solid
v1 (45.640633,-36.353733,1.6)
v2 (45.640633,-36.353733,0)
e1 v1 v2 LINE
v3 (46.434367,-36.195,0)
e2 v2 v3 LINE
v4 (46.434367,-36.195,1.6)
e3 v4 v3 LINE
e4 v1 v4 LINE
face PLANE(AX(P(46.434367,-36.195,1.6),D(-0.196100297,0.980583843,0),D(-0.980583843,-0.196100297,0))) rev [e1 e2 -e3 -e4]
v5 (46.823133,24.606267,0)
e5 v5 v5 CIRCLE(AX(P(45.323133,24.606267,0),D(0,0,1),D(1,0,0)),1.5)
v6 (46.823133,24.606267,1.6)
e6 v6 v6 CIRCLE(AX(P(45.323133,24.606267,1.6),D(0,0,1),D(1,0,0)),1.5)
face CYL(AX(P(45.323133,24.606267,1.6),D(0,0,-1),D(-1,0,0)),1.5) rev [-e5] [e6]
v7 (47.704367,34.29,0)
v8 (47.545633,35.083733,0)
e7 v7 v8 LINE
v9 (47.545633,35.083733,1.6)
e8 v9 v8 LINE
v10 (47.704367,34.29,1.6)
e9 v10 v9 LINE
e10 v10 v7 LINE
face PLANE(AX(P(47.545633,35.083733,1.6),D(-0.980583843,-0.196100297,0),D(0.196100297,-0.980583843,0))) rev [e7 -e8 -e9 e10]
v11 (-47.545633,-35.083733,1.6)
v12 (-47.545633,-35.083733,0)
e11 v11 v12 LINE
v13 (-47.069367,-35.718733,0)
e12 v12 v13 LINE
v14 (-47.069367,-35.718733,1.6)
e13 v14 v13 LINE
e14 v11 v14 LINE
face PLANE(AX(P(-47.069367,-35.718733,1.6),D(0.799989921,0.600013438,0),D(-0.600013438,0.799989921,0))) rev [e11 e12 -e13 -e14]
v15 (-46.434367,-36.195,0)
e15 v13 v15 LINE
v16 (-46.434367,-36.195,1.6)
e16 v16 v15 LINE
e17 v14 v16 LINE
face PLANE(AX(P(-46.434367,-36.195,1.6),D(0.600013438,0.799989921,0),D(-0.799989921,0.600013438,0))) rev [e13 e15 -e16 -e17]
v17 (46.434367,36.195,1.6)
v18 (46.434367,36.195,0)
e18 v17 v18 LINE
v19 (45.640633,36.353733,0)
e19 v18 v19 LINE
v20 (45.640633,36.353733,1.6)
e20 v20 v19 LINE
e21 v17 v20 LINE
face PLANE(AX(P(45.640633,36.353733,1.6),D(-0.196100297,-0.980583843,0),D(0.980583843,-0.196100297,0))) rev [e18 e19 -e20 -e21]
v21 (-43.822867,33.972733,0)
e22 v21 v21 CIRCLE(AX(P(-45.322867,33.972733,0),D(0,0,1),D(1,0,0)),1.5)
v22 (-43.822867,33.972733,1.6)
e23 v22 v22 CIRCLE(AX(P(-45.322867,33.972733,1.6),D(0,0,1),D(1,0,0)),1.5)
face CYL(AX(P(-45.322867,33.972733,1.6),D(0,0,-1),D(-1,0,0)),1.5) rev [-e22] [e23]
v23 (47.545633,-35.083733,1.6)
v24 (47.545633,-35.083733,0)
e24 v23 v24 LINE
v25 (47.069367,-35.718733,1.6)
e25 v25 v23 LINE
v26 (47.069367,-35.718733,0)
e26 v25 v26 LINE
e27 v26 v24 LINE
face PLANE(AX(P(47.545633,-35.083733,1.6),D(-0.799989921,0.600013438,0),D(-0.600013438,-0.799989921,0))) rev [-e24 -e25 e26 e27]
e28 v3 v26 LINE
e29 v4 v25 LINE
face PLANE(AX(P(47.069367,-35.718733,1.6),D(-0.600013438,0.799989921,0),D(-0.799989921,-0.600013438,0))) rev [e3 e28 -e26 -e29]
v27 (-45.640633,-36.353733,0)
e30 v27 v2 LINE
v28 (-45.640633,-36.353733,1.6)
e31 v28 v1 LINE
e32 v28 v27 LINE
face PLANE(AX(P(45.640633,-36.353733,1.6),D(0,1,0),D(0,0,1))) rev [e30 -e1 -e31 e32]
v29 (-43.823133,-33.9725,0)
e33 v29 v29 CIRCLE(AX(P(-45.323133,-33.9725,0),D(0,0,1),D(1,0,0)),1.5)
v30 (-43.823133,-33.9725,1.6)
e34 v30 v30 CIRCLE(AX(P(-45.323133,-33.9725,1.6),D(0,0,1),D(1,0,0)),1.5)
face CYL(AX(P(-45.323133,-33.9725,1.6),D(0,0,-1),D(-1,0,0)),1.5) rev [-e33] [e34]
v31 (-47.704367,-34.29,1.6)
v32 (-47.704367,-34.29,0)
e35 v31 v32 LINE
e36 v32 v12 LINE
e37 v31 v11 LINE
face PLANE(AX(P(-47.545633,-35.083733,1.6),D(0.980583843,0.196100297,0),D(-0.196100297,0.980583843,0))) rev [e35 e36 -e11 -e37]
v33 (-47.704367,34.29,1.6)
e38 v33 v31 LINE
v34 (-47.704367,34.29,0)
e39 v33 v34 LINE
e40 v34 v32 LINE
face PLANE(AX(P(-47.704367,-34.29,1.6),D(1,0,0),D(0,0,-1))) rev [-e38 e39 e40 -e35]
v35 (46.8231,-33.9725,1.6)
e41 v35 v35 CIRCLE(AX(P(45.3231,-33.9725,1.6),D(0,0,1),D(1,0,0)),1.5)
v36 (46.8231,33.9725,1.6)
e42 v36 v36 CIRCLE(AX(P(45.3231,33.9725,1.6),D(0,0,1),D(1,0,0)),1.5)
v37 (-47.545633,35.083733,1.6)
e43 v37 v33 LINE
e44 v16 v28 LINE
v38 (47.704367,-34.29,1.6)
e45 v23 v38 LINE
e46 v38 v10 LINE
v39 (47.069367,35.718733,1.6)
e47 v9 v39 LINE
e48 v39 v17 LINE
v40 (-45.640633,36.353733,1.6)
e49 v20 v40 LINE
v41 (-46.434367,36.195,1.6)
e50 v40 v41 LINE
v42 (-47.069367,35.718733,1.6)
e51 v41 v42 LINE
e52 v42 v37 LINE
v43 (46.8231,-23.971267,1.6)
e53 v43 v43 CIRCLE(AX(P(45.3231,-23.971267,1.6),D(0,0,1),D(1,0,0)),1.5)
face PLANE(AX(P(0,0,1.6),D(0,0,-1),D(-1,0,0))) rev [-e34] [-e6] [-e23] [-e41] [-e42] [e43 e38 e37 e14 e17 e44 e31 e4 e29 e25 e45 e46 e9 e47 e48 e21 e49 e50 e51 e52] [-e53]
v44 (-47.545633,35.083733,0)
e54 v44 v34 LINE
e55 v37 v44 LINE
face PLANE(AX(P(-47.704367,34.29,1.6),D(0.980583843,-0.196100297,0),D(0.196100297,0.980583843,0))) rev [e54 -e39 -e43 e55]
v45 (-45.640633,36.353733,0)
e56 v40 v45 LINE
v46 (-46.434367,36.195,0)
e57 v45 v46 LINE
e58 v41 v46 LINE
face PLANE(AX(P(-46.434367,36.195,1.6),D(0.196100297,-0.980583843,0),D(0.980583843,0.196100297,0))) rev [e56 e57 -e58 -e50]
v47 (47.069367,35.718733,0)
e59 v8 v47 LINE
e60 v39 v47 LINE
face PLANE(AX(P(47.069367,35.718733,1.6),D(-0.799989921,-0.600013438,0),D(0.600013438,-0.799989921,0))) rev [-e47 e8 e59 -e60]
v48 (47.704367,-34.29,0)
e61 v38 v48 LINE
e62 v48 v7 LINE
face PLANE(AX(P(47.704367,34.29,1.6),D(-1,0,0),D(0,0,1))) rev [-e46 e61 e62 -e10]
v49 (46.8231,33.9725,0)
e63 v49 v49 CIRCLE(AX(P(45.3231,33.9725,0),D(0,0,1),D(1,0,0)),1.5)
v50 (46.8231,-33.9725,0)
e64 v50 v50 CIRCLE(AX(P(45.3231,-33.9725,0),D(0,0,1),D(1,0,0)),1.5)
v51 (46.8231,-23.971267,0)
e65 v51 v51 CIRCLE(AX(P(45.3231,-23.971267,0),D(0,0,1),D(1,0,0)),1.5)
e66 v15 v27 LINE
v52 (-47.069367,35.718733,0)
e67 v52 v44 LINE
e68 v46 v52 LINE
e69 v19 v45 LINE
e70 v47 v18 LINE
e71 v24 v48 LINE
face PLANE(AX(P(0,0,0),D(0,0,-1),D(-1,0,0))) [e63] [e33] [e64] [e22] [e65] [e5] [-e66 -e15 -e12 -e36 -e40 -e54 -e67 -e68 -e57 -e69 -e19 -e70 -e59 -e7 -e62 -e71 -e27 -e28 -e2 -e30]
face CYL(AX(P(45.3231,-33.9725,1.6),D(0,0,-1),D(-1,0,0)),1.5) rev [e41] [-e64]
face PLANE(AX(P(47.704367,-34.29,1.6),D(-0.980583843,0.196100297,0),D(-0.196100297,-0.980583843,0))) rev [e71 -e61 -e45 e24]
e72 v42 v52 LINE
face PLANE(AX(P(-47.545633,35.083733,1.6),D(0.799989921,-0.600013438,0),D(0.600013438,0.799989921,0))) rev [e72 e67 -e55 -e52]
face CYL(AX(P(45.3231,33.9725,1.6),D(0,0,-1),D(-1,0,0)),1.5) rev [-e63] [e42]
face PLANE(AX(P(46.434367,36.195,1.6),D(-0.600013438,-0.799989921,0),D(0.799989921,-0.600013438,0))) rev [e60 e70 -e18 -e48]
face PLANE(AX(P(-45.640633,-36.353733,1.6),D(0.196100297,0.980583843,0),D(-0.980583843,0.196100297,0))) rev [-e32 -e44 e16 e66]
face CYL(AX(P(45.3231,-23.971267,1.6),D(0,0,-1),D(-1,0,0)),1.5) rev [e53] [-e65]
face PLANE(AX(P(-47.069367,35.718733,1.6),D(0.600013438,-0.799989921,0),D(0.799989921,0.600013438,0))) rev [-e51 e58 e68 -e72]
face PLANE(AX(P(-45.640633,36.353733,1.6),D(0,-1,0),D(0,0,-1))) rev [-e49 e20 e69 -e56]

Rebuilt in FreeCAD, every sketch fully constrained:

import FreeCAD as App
import Part
import Sketcher
from FreeCAD import Vector

doc = App.newDocument("Part")
body = doc.addObject("PartDesign::Body", "Body")

# Sketch on XY plane
sketch1 = doc.addObject("Sketcher::SketchObject", "Sketch")
body.addObject(sketch1)
sketch1.AttachmentSupport = (doc.XY_Plane, [""])
sketch1.MapMode = "FlatFace"
sketch1.addGeometry(Part.LineSegment(Vector(-45.6, -36.4, 0), Vector(45.6, -36.4, 0)), False)
sketch1.addGeometry(Part.LineSegment(Vector(45.6, -36.4, 0), Vector(46.4, -36.2, 0)), False)
sketch1.addGeometry(Part.LineSegment(Vector(46.4, -36.2, 0), Vector(47.1, -35.7, 0)), False)
sketch1.addGeometry(Part.LineSegment(Vector(47.1, -35.7, 0), Vector(47.5, -35.1, 0)), False)
sketch1.addGeometry(Part.LineSegment(Vector(47.5, -35.1, 0), Vector(47.7, -34.3, 0)), False)
sketch1.addGeometry(Part.LineSegment(Vector(47.7, -34.3, 0), Vector(47.7, 34.3, 0)), False)
sketch1.addGeometry(Part.LineSegment(Vector(47.7, 34.3, 0), Vector(47.5, 35.1, 0)), False)
sketch1.addGeometry(Part.LineSegment(Vector(47.5, 35.1, 0), Vector(47.1, 35.7, 0)), False)
sketch1.addGeometry(Part.LineSegment(Vector(47.1, 35.7, 0), Vector(46.4, 36.2, 0)), False)
sketch1.addGeometry(Part.LineSegment(Vector(46.4, 36.2, 0), Vector(45.6, 36.4, 0)), False)
sketch1.addGeometry(Part.LineSegment(Vector(45.6, 36.4, 0), Vector(-45.6, 36.4, 0)), False)
sketch1.addGeometry(Part.LineSegment(Vector(-45.6, 36.4, 0), Vector(-46.4, 36.2, 0)), False)
sketch1.addGeometry(Part.LineSegment(Vector(-46.4, 36.2, 0), Vector(-47.1, 35.7, 0)), False)
sketch1.addGeometry(Part.LineSegment(Vector(-47.1, 35.7, 0), Vector(-47.5, 35.1, 0)), False)
sketch1.addGeometry(Part.LineSegment(Vector(-47.5, 35.1, 0), Vector(-47.7, 34.3, 0)), False)
sketch1.addGeometry(Part.LineSegment(Vector(-47.7, 34.3, 0), Vector(-47.7, -34.3, 0)), False)
sketch1.addGeometry(Part.LineSegment(Vector(-47.7, -34.3, 0), Vector(-47.5, -35.1, 0)), False)
sketch1.addGeometry(Part.LineSegment(Vector(-47.5, -35.1, 0), Vector(-47.1, -35.7, 0)), False)
sketch1.addGeometry(Part.LineSegment(Vector(-47.1, -35.7, 0), Vector(-46.4, -36.2, 0)), False)
sketch1.addGeometry(Part.LineSegment(Vector(-46.4, -36.2, 0), Vector(-45.6, -36.4, 0)), False)
sketch1.addGeometry(Part.Circle(Vector(45.3, -34, 0), Vector(0, 0, 1), 1.5), False)
sketch1.addGeometry(Part.Circle(Vector(45.3, -24, 0), Vector(0, 0, 1), 1.5), False)
sketch1.addGeometry(Part.Circle(Vector(-45.3, -34, 0), Vector(0, 0, 1), 1.5), False)
sketch1.addGeometry(Part.Circle(Vector(45.3, 24.6, 0), Vector(0, 0, 1), 1.5), False)
sketch1.addGeometry(Part.Circle(Vector(45.3, 34, 0), Vector(0, 0, 1), 1.5), False)
sketch1.addGeometry(Part.Circle(Vector(-45.3, 34, 0), Vector(0, 0, 1), 1.5), False)
sketch1.addConstraint(Sketcher.Constraint("Coincident", 0, 2, 1, 1))
sketch1.addConstraint(Sketcher.Constraint("Coincident", 1, 2, 2, 1))
sketch1.addConstraint(Sketcher.Constraint("Coincident", 2, 2, 3, 1))
sketch1.addConstraint(Sketcher.Constraint("Coincident", 3, 2, 4, 1))
sketch1.addConstraint(Sketcher.Constraint("Coincident", 4, 2, 5, 1))
sketch1.addConstraint(Sketcher.Constraint("Coincident", 5, 2, 6, 1))
sketch1.addConstraint(Sketcher.Constraint("Coincident", 6, 2, 7, 1))
sketch1.addConstraint(Sketcher.Constraint("Coincident", 7, 2, 8, 1))
sketch1.addConstraint(Sketcher.Constraint("Coincident", 8, 2, 9, 1))
sketch1.addConstraint(Sketcher.Constraint("Coincident", 9, 2, 10, 1))
sketch1.addConstraint(Sketcher.Constraint("Coincident", 10, 2, 11, 1))
sketch1.addConstraint(Sketcher.Constraint("Coincident", 11, 2, 12, 1))
sketch1.addConstraint(Sketcher.Constraint("Coincident", 12, 2, 13, 1))
sketch1.addConstraint(Sketcher.Constraint("Coincident", 13, 2, 14, 1))
sketch1.addConstraint(Sketcher.Constraint("Coincident", 14, 2, 15, 1))
sketch1.addConstraint(Sketcher.Constraint("Coincident", 15, 2, 16, 1))
sketch1.addConstraint(Sketcher.Constraint("Coincident", 16, 2, 17, 1))
sketch1.addConstraint(Sketcher.Constraint("Coincident", 17, 2, 18, 1))
sketch1.addConstraint(Sketcher.Constraint("Coincident", 18, 2, 19, 1))
sketch1.addConstraint(Sketcher.Constraint("Coincident", 19, 2, 0, 1))
sketch1.addConstraint(Sketcher.Constraint("Horizontal", 0))
sketch1.addConstraint(Sketcher.Constraint("Vertical", 5))
sketch1.addConstraint(Sketcher.Constraint("Horizontal", 10))
sketch1.addConstraint(Sketcher.Constraint("Vertical", 15))
sketch1.addConstraint(Sketcher.Constraint("Equal", 20, 21))
sketch1.addConstraint(Sketcher.Constraint("Equal", 21, 22))
sketch1.addConstraint(Sketcher.Constraint("Equal", 22, 23))
sketch1.addConstraint(Sketcher.Constraint("Equal", 23, 24))
sketch1.addConstraint(Sketcher.Constraint("Equal", 24, 25))
sketch1.addConstraint(Sketcher.Constraint("Symmetric", 0, 2, 10, 2, -1, 1))
sketch1.addConstraint(Sketcher.Constraint("Symmetric", 1, 2, 11, 2, -1, 1))
sketch1.addConstraint(Sketcher.Constraint("Symmetric", 2, 2, 12, 2, -1, 1))
sketch1.addConstraint(Sketcher.Constraint("Symmetric", 3, 2, 13, 2, -1, 1))
sketch1.addConstraint(Sketcher.Constraint("Symmetric", 4, 2, 14, 2, -1, 1))
sketch1.addConstraint(Sketcher.Constraint("Symmetric", 6, 2, 16, 2, -1, 1))
sketch1.addConstraint(Sketcher.Constraint("Symmetric", 7, 2, 17, 2, -1, 1))
sketch1.addConstraint(Sketcher.Constraint("Symmetric", 8, 2, 18, 2, -1, 1))
sketch1.addConstraint(Sketcher.Constraint("Symmetric", 8, 2, 11, 2, -2))
sketch1.addConstraint(Sketcher.Constraint("Symmetric", 7, 2, 12, 2, -2))
sketch1.addConstraint(Sketcher.Constraint("Symmetric", 6, 2, 13, 2, -2))
sketch1.addConstraint(Sketcher.Constraint("Symmetric", 20, 3, 24, 3, -1))
sketch1.addConstraint(Sketcher.Constraint("Perpendicular", 1, 6))
sketch1.addConstraint(Sketcher.Constraint("Perpendicular", 2, 7))
sketch1.addConstraint(Sketcher.Constraint("Perpendicular", 4, 9))
sketch1.addConstraint(Sketcher.Constraint("Perpendicular", 11, 16))
sketch1.addConstraint(Sketcher.Constraint("Perpendicular", 14, 19))
sketch1.addConstraint(Sketcher.Constraint("Horizontal", 20, 3, 22, 3))
sketch1.addConstraint(Sketcher.Constraint("Horizontal", 5, 2, 14, 2))
sketch1.addConstraint(Sketcher.Constraint("Vertical", 20, 3, 21, 3))
sketch1.addConstraint(Sketcher.Constraint("Equal", 2, 3))
sketch1.addConstraint(Sketcher.Constraint("Equal", 1, 4))
sketch1.addConstraint(Sketcher.Constraint("Diameter", 20, 3.0))
sketch1.addConstraint(Sketcher.Constraint("DistanceY", 5, 1, 5, 2, 68.58))
sketch1.addConstraint(Sketcher.Constraint("DistanceY", 0, 2, 23, 3, 60.96))
sketch1.addConstraint(Sketcher.Constraint("DistanceY", 0, 2, 3, 2, 1.27))
sketch1.addConstraint(Sketcher.Constraint("DistanceY", 21, 3, 7, 2, 59.69))
sketch1.addConstraint(Sketcher.Constraint("DistanceY", 1, 2, -1, 1, 36.195))
sketch1.addConstraint(Sketcher.Constraint("DistanceY", 20, 3, 24, 3, 67.945))
sketch1.addConstraint(Sketcher.Constraint("DistanceX", 25, 3, 23, 3, 90.646))
sketch1.addConstraint(Sketcher.Constraint("DistanceY", 21, 3, 25, 3, 57.944))
sketch1.addConstraint(Sketcher.Constraint("DistanceX", 1, 2, 2, 2, 0.635))
sketch1.addConstraint(Sketcher.Constraint("DistanceX", 11, 2, 9, 2, 92.075))
sketch1.addConstraint(Sketcher.Constraint("DistanceX", -1, 1, 20, 3, 45.3231))
sketch1.addConstraint(Sketcher.Constraint("DistanceX", 23, 3, 0, 2, 0.3175))
sketch1.addConstraint(Sketcher.Constraint("DistanceX", 10, 2, 22, 3, 0.3175))
sketch1.addConstraint(Sketcher.Constraint("Distance", 1, 0.80945))
pad1 = doc.addObject("PartDesign::Pad", "Pad")
body.addObject(pad1)
pad1.Profile = sketch1
pad1.Length = 1.6

doc.recompute()
